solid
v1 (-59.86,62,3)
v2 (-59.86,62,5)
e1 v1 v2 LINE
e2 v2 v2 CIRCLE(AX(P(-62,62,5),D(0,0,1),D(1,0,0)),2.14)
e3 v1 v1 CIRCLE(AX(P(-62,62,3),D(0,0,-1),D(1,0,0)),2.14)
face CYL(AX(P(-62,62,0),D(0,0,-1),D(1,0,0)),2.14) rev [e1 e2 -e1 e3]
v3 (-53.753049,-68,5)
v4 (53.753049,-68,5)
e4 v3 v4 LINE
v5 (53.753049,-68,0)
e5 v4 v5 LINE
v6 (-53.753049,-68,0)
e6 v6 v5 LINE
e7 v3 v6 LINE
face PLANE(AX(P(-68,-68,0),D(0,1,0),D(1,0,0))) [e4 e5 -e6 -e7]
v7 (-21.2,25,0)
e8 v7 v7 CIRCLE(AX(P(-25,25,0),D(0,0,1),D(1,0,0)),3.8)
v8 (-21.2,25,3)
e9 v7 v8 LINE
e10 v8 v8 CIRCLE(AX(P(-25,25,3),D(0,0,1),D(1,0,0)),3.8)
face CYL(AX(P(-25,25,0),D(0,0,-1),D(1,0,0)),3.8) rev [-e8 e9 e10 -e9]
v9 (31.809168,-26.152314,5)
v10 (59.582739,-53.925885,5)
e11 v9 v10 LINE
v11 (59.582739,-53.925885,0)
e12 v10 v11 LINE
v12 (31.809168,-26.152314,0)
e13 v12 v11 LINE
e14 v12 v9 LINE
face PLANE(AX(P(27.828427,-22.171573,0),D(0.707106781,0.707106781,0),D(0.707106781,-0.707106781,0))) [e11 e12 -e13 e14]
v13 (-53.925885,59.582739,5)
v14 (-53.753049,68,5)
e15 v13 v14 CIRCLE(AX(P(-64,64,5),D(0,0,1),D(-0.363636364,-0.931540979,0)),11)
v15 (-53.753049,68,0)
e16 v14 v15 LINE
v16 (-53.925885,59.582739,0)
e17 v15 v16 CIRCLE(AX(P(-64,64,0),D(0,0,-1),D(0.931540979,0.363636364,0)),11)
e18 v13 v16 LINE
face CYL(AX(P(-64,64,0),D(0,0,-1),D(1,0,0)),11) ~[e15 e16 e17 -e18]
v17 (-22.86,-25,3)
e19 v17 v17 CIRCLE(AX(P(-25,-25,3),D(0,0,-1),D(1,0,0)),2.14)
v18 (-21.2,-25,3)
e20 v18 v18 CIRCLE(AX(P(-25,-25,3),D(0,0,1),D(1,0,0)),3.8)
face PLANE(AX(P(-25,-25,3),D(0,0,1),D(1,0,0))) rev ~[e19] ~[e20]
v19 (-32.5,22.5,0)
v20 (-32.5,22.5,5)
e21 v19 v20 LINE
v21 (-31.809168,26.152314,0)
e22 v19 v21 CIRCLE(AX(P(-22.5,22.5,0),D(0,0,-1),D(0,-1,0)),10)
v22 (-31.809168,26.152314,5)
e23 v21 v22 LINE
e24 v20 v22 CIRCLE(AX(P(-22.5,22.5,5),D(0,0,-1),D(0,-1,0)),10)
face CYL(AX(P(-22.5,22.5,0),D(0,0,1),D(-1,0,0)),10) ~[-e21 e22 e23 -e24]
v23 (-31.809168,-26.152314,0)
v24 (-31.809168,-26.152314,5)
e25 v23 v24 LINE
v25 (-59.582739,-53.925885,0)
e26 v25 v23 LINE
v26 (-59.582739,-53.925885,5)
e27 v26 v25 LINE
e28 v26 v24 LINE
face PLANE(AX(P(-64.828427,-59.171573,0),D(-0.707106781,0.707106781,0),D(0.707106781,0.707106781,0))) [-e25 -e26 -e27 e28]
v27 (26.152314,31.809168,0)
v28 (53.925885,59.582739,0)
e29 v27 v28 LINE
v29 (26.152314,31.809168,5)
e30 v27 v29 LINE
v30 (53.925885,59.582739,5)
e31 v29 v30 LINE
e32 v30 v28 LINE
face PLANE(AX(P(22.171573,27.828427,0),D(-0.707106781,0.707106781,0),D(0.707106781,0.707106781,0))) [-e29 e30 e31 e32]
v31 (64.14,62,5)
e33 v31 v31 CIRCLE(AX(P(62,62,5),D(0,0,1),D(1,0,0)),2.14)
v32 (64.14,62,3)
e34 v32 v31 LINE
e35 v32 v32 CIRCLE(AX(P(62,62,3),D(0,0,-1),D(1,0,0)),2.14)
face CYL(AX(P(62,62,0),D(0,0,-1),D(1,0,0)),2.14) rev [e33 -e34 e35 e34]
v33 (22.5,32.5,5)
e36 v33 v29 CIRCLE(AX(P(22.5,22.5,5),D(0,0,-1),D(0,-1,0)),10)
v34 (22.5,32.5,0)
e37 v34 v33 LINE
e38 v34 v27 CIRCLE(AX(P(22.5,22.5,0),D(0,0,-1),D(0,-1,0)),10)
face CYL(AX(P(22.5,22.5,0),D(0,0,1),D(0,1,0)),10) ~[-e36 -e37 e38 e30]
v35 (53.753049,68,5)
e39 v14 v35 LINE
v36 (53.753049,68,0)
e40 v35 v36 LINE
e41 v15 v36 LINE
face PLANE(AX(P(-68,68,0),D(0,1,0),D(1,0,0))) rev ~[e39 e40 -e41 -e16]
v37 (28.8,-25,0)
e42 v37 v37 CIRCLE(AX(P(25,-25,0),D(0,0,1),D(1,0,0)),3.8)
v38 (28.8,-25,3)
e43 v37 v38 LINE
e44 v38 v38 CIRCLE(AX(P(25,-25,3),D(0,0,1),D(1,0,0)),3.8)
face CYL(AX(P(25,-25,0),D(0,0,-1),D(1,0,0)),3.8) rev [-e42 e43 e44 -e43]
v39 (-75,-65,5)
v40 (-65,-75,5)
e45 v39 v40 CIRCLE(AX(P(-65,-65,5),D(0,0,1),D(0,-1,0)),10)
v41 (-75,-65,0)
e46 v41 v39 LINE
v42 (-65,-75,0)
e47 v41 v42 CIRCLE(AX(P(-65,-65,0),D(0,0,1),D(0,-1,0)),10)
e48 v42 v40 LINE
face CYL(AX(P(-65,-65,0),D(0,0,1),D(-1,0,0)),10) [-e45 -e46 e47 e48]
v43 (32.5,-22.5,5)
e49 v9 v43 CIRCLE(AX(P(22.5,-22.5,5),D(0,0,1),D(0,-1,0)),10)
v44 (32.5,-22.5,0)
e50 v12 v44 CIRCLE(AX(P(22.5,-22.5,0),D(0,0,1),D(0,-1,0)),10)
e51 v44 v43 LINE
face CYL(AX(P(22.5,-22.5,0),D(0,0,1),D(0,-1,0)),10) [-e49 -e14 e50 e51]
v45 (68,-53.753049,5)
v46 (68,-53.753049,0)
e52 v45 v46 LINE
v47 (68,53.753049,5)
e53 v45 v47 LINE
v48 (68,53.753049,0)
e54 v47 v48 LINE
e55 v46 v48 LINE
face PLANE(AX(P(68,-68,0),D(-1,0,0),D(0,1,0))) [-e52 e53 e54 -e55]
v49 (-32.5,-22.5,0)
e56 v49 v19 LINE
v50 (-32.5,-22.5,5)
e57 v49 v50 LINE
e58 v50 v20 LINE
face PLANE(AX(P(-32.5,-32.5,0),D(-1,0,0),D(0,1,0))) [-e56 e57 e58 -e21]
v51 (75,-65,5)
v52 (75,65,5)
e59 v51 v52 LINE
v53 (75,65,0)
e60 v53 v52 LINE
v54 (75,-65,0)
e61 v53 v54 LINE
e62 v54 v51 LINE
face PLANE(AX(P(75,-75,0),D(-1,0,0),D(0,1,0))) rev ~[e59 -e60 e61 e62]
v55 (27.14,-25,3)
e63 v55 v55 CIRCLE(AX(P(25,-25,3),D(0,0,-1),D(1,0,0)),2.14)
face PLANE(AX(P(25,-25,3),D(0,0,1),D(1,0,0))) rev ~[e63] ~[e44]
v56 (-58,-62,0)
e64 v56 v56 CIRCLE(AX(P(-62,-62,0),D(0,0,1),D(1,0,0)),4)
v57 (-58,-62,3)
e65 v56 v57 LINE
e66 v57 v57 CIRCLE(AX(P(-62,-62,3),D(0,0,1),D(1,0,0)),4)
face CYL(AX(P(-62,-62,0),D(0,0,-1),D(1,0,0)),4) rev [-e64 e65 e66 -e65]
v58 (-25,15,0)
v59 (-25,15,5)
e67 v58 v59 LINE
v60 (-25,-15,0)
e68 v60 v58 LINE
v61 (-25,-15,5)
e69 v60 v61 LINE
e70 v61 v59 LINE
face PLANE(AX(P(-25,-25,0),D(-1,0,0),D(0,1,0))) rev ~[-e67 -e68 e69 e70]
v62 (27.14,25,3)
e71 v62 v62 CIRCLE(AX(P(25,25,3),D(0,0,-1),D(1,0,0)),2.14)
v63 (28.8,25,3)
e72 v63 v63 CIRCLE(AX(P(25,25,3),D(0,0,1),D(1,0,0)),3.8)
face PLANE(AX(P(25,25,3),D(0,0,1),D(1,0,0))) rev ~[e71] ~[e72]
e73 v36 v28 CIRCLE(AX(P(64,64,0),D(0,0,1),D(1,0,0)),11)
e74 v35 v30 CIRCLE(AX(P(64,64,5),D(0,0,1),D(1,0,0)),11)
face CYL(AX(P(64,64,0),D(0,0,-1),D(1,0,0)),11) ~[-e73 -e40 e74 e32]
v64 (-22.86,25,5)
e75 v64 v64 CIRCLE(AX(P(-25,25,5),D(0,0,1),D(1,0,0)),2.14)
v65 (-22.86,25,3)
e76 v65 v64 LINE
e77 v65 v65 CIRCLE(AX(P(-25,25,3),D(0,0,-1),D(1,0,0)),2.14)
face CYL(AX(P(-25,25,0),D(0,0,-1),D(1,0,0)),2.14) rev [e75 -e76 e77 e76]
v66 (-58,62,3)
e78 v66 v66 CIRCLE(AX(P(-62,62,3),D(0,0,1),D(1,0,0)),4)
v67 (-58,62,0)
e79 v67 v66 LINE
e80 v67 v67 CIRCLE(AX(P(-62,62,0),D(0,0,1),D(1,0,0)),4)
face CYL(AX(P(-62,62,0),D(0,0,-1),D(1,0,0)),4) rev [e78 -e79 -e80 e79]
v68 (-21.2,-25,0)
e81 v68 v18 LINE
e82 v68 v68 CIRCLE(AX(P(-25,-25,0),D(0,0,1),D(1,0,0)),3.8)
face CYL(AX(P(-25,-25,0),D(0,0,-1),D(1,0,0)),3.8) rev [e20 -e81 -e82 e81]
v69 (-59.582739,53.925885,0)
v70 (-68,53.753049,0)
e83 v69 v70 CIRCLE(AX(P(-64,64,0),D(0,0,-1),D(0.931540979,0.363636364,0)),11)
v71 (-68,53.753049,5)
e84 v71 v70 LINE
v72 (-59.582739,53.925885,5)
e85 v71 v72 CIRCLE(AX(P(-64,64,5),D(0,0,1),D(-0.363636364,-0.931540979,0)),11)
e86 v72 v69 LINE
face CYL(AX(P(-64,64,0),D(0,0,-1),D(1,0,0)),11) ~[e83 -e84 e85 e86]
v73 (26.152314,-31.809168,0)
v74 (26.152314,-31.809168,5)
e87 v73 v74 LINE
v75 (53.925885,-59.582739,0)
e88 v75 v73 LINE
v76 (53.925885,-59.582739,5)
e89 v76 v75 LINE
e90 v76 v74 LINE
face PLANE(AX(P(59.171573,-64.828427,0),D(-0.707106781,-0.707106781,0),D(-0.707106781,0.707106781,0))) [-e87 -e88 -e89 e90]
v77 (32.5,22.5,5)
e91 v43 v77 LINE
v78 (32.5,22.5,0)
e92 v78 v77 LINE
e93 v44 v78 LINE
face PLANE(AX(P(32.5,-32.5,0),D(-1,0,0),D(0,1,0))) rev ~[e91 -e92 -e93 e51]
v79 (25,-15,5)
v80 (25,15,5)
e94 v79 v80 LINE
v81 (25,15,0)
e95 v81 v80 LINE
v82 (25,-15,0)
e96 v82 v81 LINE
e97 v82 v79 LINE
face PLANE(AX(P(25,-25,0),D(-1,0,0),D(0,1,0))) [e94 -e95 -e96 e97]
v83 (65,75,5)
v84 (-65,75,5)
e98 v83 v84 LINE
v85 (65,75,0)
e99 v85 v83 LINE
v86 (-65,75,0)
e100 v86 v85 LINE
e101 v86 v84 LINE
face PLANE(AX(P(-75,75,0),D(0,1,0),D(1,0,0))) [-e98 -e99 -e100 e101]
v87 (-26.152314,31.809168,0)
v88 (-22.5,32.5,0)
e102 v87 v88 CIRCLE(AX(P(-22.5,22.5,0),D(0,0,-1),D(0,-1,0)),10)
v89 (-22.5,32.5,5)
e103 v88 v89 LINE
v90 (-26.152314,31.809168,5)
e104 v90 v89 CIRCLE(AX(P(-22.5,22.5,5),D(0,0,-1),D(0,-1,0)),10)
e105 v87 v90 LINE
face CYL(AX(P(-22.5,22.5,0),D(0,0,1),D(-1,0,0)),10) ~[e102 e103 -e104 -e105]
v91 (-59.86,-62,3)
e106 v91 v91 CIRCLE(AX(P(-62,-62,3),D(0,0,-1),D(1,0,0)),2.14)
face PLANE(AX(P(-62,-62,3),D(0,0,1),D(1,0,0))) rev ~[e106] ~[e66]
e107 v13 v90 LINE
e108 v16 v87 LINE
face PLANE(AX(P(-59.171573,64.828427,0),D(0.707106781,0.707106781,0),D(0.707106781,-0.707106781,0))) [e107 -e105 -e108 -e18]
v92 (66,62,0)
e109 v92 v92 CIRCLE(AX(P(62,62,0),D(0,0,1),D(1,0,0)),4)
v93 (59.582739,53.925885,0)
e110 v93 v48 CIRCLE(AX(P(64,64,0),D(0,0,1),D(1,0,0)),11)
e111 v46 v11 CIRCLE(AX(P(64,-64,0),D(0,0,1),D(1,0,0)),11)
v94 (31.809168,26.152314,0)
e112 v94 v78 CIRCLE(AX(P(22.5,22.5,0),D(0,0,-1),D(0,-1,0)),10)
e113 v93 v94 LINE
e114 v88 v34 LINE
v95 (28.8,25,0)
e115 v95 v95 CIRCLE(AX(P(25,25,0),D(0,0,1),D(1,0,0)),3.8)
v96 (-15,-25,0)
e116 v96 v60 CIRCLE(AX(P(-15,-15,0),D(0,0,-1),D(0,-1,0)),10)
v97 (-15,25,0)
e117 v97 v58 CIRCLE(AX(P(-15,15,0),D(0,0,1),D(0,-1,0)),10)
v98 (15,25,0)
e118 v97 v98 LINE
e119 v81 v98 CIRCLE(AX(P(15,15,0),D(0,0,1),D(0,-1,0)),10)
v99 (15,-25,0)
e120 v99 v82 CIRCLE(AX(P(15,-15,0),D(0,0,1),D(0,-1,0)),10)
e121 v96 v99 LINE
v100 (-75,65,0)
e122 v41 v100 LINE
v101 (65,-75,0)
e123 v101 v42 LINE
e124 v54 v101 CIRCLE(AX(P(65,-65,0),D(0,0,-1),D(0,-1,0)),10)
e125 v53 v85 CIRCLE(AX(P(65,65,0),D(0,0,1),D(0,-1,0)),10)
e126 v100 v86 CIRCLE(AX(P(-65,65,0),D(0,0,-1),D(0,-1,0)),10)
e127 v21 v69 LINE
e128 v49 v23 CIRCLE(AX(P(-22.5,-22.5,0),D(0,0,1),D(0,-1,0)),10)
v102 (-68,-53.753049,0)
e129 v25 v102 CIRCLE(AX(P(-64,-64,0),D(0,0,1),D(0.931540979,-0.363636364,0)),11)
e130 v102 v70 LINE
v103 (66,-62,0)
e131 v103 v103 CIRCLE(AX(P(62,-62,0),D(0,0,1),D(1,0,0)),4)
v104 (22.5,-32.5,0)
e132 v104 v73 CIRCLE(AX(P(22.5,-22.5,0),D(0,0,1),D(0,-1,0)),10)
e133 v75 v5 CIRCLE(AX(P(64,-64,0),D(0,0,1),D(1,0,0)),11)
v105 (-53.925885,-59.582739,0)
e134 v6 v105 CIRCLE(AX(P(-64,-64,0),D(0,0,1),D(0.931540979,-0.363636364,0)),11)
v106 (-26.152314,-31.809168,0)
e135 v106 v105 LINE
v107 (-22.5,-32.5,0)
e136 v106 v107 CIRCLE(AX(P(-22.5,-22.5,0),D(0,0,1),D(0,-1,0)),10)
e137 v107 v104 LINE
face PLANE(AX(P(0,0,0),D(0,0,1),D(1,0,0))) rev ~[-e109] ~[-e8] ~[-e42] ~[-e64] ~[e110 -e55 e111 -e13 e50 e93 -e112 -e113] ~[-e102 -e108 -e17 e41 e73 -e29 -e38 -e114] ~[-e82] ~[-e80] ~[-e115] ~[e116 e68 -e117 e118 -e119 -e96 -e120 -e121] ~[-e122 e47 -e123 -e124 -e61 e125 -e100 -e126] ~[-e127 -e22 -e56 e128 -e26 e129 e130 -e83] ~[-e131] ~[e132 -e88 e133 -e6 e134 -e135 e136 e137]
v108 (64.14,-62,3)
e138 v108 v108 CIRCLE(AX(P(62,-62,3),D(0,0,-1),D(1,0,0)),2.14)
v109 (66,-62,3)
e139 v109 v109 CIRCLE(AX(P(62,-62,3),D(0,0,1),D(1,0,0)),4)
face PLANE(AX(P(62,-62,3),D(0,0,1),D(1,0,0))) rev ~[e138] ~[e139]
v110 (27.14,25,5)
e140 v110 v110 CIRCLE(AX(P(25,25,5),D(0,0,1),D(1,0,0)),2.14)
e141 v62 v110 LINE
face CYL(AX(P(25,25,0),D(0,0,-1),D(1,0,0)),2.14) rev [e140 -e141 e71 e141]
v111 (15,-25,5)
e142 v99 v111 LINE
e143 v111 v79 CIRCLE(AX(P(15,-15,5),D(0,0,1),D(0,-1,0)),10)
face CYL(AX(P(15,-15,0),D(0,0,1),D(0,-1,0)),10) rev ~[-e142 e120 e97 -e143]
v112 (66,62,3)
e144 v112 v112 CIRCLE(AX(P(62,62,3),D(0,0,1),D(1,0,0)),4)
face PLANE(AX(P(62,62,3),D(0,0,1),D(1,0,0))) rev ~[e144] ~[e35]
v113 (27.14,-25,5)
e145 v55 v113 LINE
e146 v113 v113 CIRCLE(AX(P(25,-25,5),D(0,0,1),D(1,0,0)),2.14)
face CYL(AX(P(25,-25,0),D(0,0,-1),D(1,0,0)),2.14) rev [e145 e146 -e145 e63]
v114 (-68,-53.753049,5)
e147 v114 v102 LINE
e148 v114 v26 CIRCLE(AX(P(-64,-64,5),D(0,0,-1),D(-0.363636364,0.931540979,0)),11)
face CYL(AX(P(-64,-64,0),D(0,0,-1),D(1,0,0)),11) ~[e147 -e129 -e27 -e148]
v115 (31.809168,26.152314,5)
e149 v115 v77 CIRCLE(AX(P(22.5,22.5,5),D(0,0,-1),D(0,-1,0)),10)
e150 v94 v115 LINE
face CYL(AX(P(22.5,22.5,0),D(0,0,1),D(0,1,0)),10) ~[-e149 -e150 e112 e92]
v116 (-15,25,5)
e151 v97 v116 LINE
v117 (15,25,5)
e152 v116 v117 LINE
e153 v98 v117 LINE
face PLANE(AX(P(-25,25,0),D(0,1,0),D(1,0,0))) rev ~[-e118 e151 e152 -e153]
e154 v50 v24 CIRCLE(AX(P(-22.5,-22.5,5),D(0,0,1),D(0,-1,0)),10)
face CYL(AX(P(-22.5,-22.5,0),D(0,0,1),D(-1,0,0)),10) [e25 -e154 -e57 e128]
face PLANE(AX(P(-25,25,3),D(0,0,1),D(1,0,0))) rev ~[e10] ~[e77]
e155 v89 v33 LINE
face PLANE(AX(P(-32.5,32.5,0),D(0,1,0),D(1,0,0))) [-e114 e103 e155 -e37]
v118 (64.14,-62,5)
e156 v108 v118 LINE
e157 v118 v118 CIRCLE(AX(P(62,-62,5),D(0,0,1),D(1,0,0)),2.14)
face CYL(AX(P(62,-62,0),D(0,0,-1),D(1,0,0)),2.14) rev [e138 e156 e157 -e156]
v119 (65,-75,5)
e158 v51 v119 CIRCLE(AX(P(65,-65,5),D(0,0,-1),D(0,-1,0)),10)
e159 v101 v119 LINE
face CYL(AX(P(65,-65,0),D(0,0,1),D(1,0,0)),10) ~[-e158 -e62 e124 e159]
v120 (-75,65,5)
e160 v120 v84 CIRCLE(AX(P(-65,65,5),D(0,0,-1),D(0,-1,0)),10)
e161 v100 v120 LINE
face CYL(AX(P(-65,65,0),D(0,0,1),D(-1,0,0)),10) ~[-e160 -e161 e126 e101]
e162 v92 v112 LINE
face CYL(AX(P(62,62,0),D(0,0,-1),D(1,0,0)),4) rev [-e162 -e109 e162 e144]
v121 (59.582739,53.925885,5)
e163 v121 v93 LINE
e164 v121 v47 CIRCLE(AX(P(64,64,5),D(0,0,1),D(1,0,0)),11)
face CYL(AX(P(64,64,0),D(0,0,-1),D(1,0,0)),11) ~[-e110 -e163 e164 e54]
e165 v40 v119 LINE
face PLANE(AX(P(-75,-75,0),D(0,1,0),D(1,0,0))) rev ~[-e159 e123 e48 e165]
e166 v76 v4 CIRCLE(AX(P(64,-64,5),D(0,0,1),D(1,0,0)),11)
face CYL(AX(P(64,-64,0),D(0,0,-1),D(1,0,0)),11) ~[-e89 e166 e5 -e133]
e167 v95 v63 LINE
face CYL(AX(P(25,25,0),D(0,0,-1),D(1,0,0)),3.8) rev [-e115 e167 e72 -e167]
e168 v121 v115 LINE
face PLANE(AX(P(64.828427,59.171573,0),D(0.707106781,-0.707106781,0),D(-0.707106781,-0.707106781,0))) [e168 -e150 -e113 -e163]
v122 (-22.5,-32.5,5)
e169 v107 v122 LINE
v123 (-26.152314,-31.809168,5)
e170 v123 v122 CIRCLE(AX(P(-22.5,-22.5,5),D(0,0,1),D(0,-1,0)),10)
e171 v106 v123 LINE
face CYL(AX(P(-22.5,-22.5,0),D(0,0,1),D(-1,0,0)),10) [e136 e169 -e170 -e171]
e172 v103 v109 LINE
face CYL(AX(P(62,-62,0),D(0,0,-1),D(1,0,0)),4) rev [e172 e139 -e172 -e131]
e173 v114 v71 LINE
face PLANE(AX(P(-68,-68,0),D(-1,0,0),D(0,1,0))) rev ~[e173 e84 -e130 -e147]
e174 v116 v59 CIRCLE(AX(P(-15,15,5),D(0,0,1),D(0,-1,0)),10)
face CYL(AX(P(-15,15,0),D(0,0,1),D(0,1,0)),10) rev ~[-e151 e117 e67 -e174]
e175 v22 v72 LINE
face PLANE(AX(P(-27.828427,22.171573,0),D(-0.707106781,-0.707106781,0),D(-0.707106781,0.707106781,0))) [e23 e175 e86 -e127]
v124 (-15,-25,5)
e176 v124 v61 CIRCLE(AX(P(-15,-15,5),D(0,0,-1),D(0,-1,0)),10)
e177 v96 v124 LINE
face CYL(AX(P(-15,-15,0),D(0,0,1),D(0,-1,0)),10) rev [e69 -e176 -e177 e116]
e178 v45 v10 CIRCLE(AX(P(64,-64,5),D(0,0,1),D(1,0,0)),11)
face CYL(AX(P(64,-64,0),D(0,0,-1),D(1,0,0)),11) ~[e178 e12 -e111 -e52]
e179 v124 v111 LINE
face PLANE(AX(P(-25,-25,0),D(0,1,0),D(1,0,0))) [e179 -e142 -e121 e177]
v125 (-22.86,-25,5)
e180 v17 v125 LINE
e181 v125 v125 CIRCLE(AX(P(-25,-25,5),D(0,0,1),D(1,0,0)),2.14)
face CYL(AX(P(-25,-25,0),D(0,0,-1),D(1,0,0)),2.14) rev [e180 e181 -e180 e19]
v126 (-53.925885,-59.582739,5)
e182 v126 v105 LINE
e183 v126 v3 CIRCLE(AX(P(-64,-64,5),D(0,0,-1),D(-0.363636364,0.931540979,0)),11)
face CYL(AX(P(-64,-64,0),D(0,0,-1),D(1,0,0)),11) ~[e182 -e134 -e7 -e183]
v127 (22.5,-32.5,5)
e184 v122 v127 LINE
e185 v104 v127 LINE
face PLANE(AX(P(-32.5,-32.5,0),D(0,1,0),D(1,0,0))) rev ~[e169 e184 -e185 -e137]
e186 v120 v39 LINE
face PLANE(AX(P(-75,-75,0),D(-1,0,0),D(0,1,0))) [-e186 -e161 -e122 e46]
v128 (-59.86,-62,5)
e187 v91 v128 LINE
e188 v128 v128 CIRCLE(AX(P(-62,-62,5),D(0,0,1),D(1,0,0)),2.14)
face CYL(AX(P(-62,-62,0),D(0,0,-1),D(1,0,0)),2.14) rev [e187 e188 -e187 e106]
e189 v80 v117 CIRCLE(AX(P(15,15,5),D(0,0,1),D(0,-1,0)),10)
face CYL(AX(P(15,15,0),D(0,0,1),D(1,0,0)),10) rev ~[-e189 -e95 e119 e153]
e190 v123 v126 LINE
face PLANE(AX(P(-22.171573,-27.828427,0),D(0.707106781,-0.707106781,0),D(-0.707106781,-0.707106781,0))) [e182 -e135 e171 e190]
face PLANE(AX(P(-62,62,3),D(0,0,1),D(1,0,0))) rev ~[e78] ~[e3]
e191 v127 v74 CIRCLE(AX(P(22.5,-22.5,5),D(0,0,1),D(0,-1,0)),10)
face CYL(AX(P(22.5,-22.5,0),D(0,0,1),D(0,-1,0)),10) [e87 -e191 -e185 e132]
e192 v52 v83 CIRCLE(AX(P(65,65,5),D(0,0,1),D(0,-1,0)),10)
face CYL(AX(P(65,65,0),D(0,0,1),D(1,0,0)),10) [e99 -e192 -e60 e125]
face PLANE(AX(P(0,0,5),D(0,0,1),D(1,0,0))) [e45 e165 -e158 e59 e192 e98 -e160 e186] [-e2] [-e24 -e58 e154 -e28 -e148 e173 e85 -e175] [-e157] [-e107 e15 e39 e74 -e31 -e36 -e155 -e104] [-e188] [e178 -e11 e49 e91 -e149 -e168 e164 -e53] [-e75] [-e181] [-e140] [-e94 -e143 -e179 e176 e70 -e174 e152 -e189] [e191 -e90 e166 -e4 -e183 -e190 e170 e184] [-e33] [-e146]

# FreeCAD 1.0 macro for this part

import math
import FreeCAD as App
import Part
import Sketcher
Q = App.Units.Quantity


def edges_at(feature, points):
    """Names of the edges that pass closest to the given points."""
    edges = feature.Shape.Edges
    near = lambda p: min(range(len(edges)), key=lambda i: edges[i].distToShape(Part.Vertex(*p))[0])
    return sorted({f"Edge{near(p) + 1}" for p in points})

doc = App.newDocument("Part")
body = doc.addObject("PartDesign::Body", "Body")

sketch1 = doc.addObject("Sketcher::SketchObject", "Sketch")
body.addObject(sketch1)
sketch1.AttachmentSupport = (doc.XY_Plane, [""])
sketch1.MapMode = "FlatFace"
sketch1.addGeometry(Part.Circle(App.Vector(-64, -64, 0), App.Vector(0, 0, 1), 11), False)
sketch1.addConstraint([
    Sketcher.Constraint("Diameter", 0, 22.0),
    Sketcher.Constraint("DistanceX", 0, 3, -1, 1, 64.0),
    Sketcher.Constraint("DistanceY", 0, 3, -1, 1, 64.0),
])
pad1 = doc.addObject("PartDesign::Pad", "Pad")
body.addObject(pad1)
pad1.Profile = sketch1
pad1.Length = 5
body2 = doc.addObject("PartDesign::Body", "Body001")

sketch2 = doc.addObject("Sketcher::SketchObject", "Sketch001")
body2.addObject(sketch2)
sketch2.AttachmentSupport = (doc.getObject("XY_Plane001"), [""])
sketch2.MapMode = "FlatFace"
sketch2.addGeometry(Part.Circle(App.Vector(-64, 64, 0), App.Vector(0, 0, 1), 11), False)
sketch2.addConstraint([
    Sketcher.Constraint("Diameter", 0, 22.0),
    Sketcher.Constraint("DistanceX", 0, 3, -1, 1, 64.0),
    Sketcher.Constraint("DistanceY", -1, 1, 0, 3, 64.0),
])
pad2 = doc.addObject("PartDesign::Pad", "Pad001")
body2.addObject(pad2)
pad2.Profile = sketch2
pad2.Length = 5
body3 = doc.addObject("PartDesign::Body", "Body002")

sketch3 = doc.addObject("Sketcher::SketchObject", "Sketch002")
body3.addObject(sketch3)
sketch3.AttachmentSupport = (doc.getObject("XY_Plane002"), [""])
sketch3.MapMode = "FlatFace"
sketch3.addGeometry(Part.Circle(App.Vector(64, -64, 0), App.Vector(0, 0, 1), 11), False)
sketch3.addConstraint([
    Sketcher.Constraint("Diameter", 0, 22.0),
    Sketcher.Constraint("DistanceX", -1, 1, 0, 3, 64.0),
    Sketcher.Constraint("DistanceY", 0, 3, -1, 1, 64.0),
])
pad3 = doc.addObject("PartDesign::Pad", "Pad002")
body3.addObject(pad3)
pad3.Profile = sketch3
pad3.Length = 5
body4 = doc.addObject("PartDesign::Body", "Body003")

sketch4 = doc.addObject("Sketcher::SketchObject", "Sketch003")
body4.addObject(sketch4)
sketch4.AttachmentSupport = (doc.getObject("XY_Plane003"), [""])
sketch4.MapMode = "FlatFace"
sketch4.addGeometry(Part.Circle(App.Vector(64, 64, 0), App.Vector(0, 0, 1), 11), False)
sketch4.addConstraint([
    Sketcher.Constraint("Diameter", 0, 22.0),
    Sketcher.Constraint("DistanceX", -1, 1, 0, 3, 64.0),
    Sketcher.Constraint("DistanceY", -1, 1, 0, 3, 64.0),
])
pad4 = doc.addObject("PartDesign::Pad", "Pad003")
body4.addObject(pad4)
pad4.Profile = sketch4
pad4.Length = 5
body2.AllowCompound = True
doc.recompute()

boolean = doc.addObject("PartDesign::Boolean", "Boolean")
body2.addObject(boolean)
boolean.Type = "Fuse"
boolean.addObjects([body3])
doc.recompute()

boolean2 = doc.addObject("PartDesign::Boolean", "Boolean001")
body2.addObject(boolean2)
boolean2.Type = "Fuse"
boolean2.addObjects([body4])

sketch5 = doc.addObject("Sketcher::SketchObject", "Sketch004")
body2.addObject(sketch5)
sketch5.AttachmentSupport = (doc.getObject("XY_Plane001"), [""])
sketch5.MapMode = "FlatFace"
sketch5.addGeometry([
    Part.LineSegment(App.Vector(-75, 75, 0), App.Vector(-75, -75, 0)),
    Part.LineSegment(App.Vector(-75, -75, 0), App.Vector(75, -75, 0)),
    Part.LineSegment(App.Vector(75, -75, 0), App.Vector(75, 75, 0)),
    Part.LineSegment(App.Vector(75, 75, 0), App.Vector(-75, 75, 0)),
    Part.LineSegment(App.Vector(68, -68, 0), App.Vector(-68, -68, 0)),
    Part.LineSegment(App.Vector(-68, -68, 0), App.Vector(-68, 68, 0)),
    Part.LineSegment(App.Vector(-68, 68, 0), App.Vector(68, 68, 0)),
    Part.LineSegment(App.Vector(68, 68, 0), App.Vector(68, -68, 0)),
], False)
sketch5.addConstraint([
    Sketcher.Constraint("Coincident", 0, 2, 1, 1),
    Sketcher.Constraint("Coincident", 1, 2, 2, 1),
    Sketcher.Constraint("Coincident", 2, 2, 3, 1),
    Sketcher.Constraint("Coincident", 3, 2, 0, 1),
    Sketcher.Constraint("Coincident", 4, 2, 5, 1),
    Sketcher.Constraint("Coincident", 5, 2, 6, 1),
    Sketcher.Constraint("Coincident", 6, 2, 7, 1),
    Sketcher.Constraint("Coincident", 7, 2, 4, 1),
    Sketcher.Constraint("Vertical", 0),
    Sketcher.Constraint("Horizontal", 1),
    Sketcher.Constraint("Vertical", 2),
    Sketcher.Constraint("Horizontal", 3),
    Sketcher.Constraint("Horizontal", 4),
    Sketcher.Constraint("Vertical", 5),
    Sketcher.Constraint("Horizontal", 6),
    Sketcher.Constraint("Vertical", 7),
    Sketcher.Constraint("Symmetric", 0, 2, 2, 2, -1, 1),
    Sketcher.Constraint("Symmetric", 4, 2, 6, 2, -1, 1),
    Sketcher.Constraint("Equal", 3, 0),
    Sketcher.Constraint("Equal", 6, 5),
    Sketcher.Constraint("DistanceX", 1, 1, 1, 2, 150.0),
    Sketcher.Constraint("DistanceX", 4, 2, 4, 1, 136.0),
])
pad5 = doc.addObject("PartDesign::Pad", "Pad004")
body2.addObject(pad5)
pad5.Profile = sketch5
pad5.Length = 5
doc.recompute()

fillet = doc.addObject("PartDesign::Fillet", "Fillet")
body2.addObject(fillet)
fillet.Base = (pad5, edges_at(pad5, [
    (75, -75, 2.5),
    (75, 75, 2.5),
    (-75, 75, 2.5),
    (-75, -75, 2.5),
]))
fillet.Radius = 10
doc.recompute()

boolean3 = doc.addObject("PartDesign::Boolean", "Boolean002")
body2.addObject(boolean3)
boolean3.Type = "Fuse"
boolean3.addObjects([body])
body5 = doc.addObject("PartDesign::Body", "Body004")

sketch6 = doc.addObject("Sketcher::SketchObject", "Sketch005")
body5.addObject(sketch6)
sketch6.AttachmentSupport = (doc.getObject("XY_Plane004"), [""])
sketch6.MapMode = "FlatFace"
sketch6.addGeometry(Part.Circle(App.Vector(-62, 62, 0), App.Vector(0, 0, 1), 2.1), False)
sketch6.addConstraint([
    Sketcher.Constraint("Diameter", 0, 4.28),
    Sketcher.Constraint("DistanceX", 0, 3, -1, 1, 62.0),
    Sketcher.Constraint("DistanceY", -1, 1, 0, 3, 62.0),
])
pad6 = doc.addObject("PartDesign::Pad", "Pad005")
body5.addObject(pad6)
pad6.Profile = sketch6
pad6.Length = 5
body6 = doc.addObject("PartDesign::Body", "Body005")

sketch7 = doc.addObject("Sketcher::SketchObject", "Sketch006")
body6.addObject(sketch7)
sketch7.AttachmentSupport = (doc.getObject("XY_Plane005"), [""])
sketch7.MapMode = "FlatFace"
sketch7.addGeometry(Part.Circle(App.Vector(-62, -62, 0), App.Vector(0, 0, 1), 2.1), False)
sketch7.addConstraint([
    Sketcher.Constraint("Diameter", 0, 4.28),
    Sketcher.Constraint("DistanceX", 0, 3, -1, 1, 62.0),
    Sketcher.Constraint("DistanceY", 0, 3, -1, 1, 62.0),
])
pad7 = doc.addObject("PartDesign::Pad", "Pad006")
body6.addObject(pad7)
pad7.Profile = sketch7
pad7.Length = 5
body7 = doc.addObject("PartDesign::Body", "Body006")

sketch8 = doc.addObject("Sketcher::SketchObject", "Sketch007")
body7.addObject(sketch8)
sketch8.AttachmentSupport = (doc.getObject("XY_Plane006"), [""])
sketch8.MapMode = "FlatFace"
sketch8.addGeometry(Part.Circle(App.Vector(62, 62, 0), App.Vector(0, 0, 1), 2.1), False)
sketch8.addConstraint([
    Sketcher.Constraint("Diameter", 0, 4.28),
    Sketcher.Constraint("DistanceX", -1, 1, 0, 3, 62.0),
    Sketcher.Constraint("DistanceY", -1, 1, 0, 3, 62.0),
])
pad8 = doc.addObject("PartDesign::Pad", "Pad007")
body7.addObject(pad8)
pad8.Profile = sketch8
pad8.Length = 5
body8 = doc.addObject("PartDesign::Body", "Body007")

sketch9 = doc.addObject("Sketcher::SketchObject", "Sketch008")
body8.addObject(sketch9)
sketch9.AttachmentSupport = (doc.getObject("XY_Plane007"), [""])
sketch9.MapMode = "FlatFace"
sketch9.addGeometry(Part.Circle(App.Vector(62, -62, 0), App.Vector(0, 0, 1), 2.1), False)
sketch9.addConstraint([
    Sketcher.Constraint("Diameter", 0, 4.28),
    Sketcher.Constraint("DistanceX", -1, 1, 0, 3, 62.0),
    Sketcher.Constraint("DistanceY", 0, 3, -1, 1, 62.0),
])
pad9 = doc.addObject("PartDesign::Pad", "Pad008")
body8.addObject(pad9)
pad9.Profile = sketch9
pad9.Length = 5
body9 = doc.addObject("PartDesign::Body", "Body008")

sketch10 = doc.addObject("Sketcher::SketchObject", "Sketch009")
body9.addObject(sketch10)
sketch10.AttachmentSupport = (doc.getObject("XY_Plane008"), [""])
sketch10.MapMode = "FlatFace"
sketch10.addGeometry(Part.Circle(App.Vector(-62, 62, 0), App.Vector(0, 0, 1), 4), False)
sketch10.addConstraint([
    Sketcher.Constraint("Diameter", 0, 8.0),
    Sketcher.Constraint("DistanceX", 0, 3, -1, 1, 62.0),
    Sketcher.Constraint("DistanceY", -1, 1, 0, 3, 62.0),
])
pad10 = doc.addObject("PartDesign::Pad", "Pad009")
body9.addObject(pad10)
pad10.Profile = sketch10
pad10.Length = 3
body10 = doc.addObject("PartDesign::Body", "Body009")

sketch11 = doc.addObject("Sketcher::SketchObject", "Sketch010")
body10.addObject(sketch11)
sketch11.AttachmentSupport = (doc.getObject("XY_Plane009"), [""])
sketch11.MapMode = "FlatFace"
sketch11.addGeometry(Part.Circle(App.Vector(-62, -62, 0), App.Vector(0, 0, 1), 4), False)
sketch11.addConstraint([
    Sketcher.Constraint("Diameter", 0, 8.0),
    Sketcher.Constraint("DistanceX", 0, 3, -1, 1, 62.0),
    Sketcher.Constraint("DistanceY", 0, 3, -1, 1, 62.0),
])
pad11 = doc.addObject("PartDesign::Pad", "Pad010")
body10.addObject(pad11)
pad11.Profile = sketch11
pad11.Length = 3
body11 = doc.addObject("PartDesign::Body", "Body010")

sketch12 = doc.addObject("Sketcher::SketchObject", "Sketch011")
body11.addObject(sketch12)
sketch12.AttachmentSupport = (doc.getObject("XY_Plane010"), [""])
sketch12.MapMode = "FlatFace"
sketch12.addGeometry(Part.Circle(App.Vector(62, 62, 0), App.Vector(0, 0, 1), 4), False)
sketch12.addConstraint([
    Sketcher.Constraint("Diameter", 0, 8.0),
    Sketcher.Constraint("DistanceX", -1, 1, 0, 3, 62.0),
    Sketcher.Constraint("DistanceY", -1, 1, 0, 3, 62.0),
])
pad12 = doc.addObject("PartDesign::Pad", "Pad011")
body11.addObject(pad12)
pad12.Profile = sketch12
pad12.Length = 3
body12 = doc.addObject("PartDesign::Body", "Body011")

sketch13 = doc.addObject("Sketcher::SketchObject", "Sketch012")
body12.addObject(sketch13)
sketch13.AttachmentSupport = (doc.getObject("XY_Plane011"), [""])
sketch13.MapMode = "FlatFace"
sketch13.addGeometry(Part.Circle(App.Vector(62, -62, 0), App.Vector(0, 0, 1), 4), False)
sketch13.addConstraint([
    Sketcher.Constraint("Diameter", 0, 8.0),
    Sketcher.Constraint("DistanceX", -1, 1, 0, 3, 62.0),
    Sketcher.Constraint("DistanceY", 0, 3, -1, 1, 62.0),
])
pad13 = doc.addObject("PartDesign::Pad", "Pad012")
body12.addObject(pad13)
pad13.Profile = sketch13
pad13.Length = 3
body13 = doc.addObject("PartDesign::Body", "Body012")

sketch14 = doc.addObject("Sketcher::SketchObject", "Sketch013")
body13.addObject(sketch14)
sketch14.AttachmentSupport = (doc.getObject("XY_Plane012"), [""])
sketch14.MapMode = "FlatFace"
sketch14.addGeometry([
    Part.LineSegment(App.Vector(-32, 32, 0), App.Vector(-32, -32, 0)),
    Part.LineSegment(App.Vector(-32, -32, 0), App.Vector(32, -32, 0)),
    Part.LineSegment(App.Vector(32, -32, 0), App.Vector(32, 32, 0)),
    Part.LineSegment(App.Vector(32, 32, 0), App.Vector(-32, 32, 0)),
    Part.LineSegment(App.Vector(25, -25, 0), App.Vector(-25, -25, 0)),
    Part.LineSegment(App.Vector(-25, -25, 0), App.Vector(-25, 25, 0)),
    Part.LineSegment(App.Vector(-25, 25, 0), App.Vector(25, 25, 0)),
    Part.LineSegment(App.Vector(25, 25, 0), App.Vector(25, -25, 0)),
], False)
sketch14.addConstraint([
    Sketcher.Constraint("Coincident", 0, 2, 1, 1),
    Sketcher.Constraint("Coincident", 1, 2, 2, 1),
    Sketcher.Constraint("Coincident", 2, 2, 3, 1),
    Sketcher.Constraint("Coincident", 3, 2, 0, 1),
    Sketcher.Constraint("Coincident", 4, 2, 5, 1),
    Sketcher.Constraint("Coincident", 5, 2, 6, 1),
    Sketcher.Constraint("Coincident", 6, 2, 7, 1),
    Sketcher.Constraint("Coincident", 7, 2, 4, 1),
    Sketcher.Constraint("Vertical", 0),
    Sketcher.Constraint("Horizontal", 1),
    Sketcher.Constraint("Vertical", 2),
    Sketcher.Constraint("Horizontal", 3),
    Sketcher.Constraint("Horizontal", 4),
    Sketcher.Constraint("Vertical", 5),
    Sketcher.Constraint("Horizontal", 6),
    Sketcher.Constraint("Vertical", 7),
    Sketcher.Constraint("Symmetric", 0, 2, 2, 2, -1, 1),
    Sketcher.Constraint("Symmetric", 4, 2, 6, 2, -1, 1),
    Sketcher.Constraint("Equal", 3, 0),
    Sketcher.Constraint("Equal", 6, 5),
    Sketcher.Constraint("DistanceX", 1, 1, 1, 2, 65.0),
    Sketcher.Constraint("DistanceX", 4, 2, 4, 1, 50.0),
])
pad14 = doc.addObject("PartDesign::Pad", "Pad013")
body13.addObject(pad14)
pad14.Profile = sketch14
pad14.Length = 5
doc.recompute()

fillet2 = doc.addObject("PartDesign::Fillet", "Fillet001")
body13.addObject(fillet2)
fillet2.Base = (pad14, edges_at(pad14, [
    (-25, -25, 2.5),
    (25, -25, 2.5),
    (-25, 25, 2.5),
    (25, 25, 2.5),
    (32.5, -32.5, 2.5),
    (-32.5, -32.5, 2.5),
    (-32.5, 32.5, 2.5),
    (32.5, 32.5, 2.5),
]))
fillet2.Radius = 10
body14 = doc.addObject("PartDesign::Body", "Body013")

sketch15 = doc.addObject("Sketcher::SketchObject", "Sketch014")
body14.addObject(sketch15)
sketch15.AttachmentSupport = (doc.getObject("XY_Plane013"), [""])
sketch15.MapMode = "FlatFace"
sketch15.addGeometry(Part.Circle(App.Vector(25, 25, 0), App.Vector(0, 0, 1), 2.1), False)
sketch15.addConstraint([
    Sketcher.Constraint("Diameter", 0, 4.28),
    Sketcher.Constraint("DistanceX", -1, 1, 0, 3, 25.0),
    Sketcher.Constraint("DistanceY", -1, 1, 0, 3, 25.0),
])
pad15 = doc.addObject("PartDesign::Pad", "Pad014")
body14.addObject(pad15)
pad15.Profile = sketch15
pad15.Length = 5
body15 = doc.addObject("PartDesign::Body", "Body014")

sketch16 = doc.addObject("Sketcher::SketchObject", "Sketch015")
body15.addObject(sketch16)
sketch16.AttachmentSupport = (doc.getObject("XY_Plane014"), [""])
sketch16.MapMode = "FlatFace"
sketch16.addGeometry(Part.Circle(App.Vector(-25, 25, 0), App.Vector(0, 0, 1), 2.1), False)
sketch16.addConstraint([
    Sketcher.Constraint("Diameter", 0, 4.28),
    Sketcher.Constraint("DistanceX", 0, 3, -1, 1, 25.0),
    Sketcher.Constraint("DistanceY", -1, 1, 0, 3, 25.0),
])
pad16 = doc.addObject("PartDesign::Pad", "Pad015")
body15.addObject(pad16)
pad16.Profile = sketch16
pad16.Length = 5
body16 = doc.addObject("PartDesign::Body", "Body015")

sketch17 = doc.addObject("Sketcher::SketchObject", "Sketch016")
body16.addObject(sketch17)
sketch17.AttachmentSupport = (doc.getObject("XY_Plane015"), [""])
sketch17.MapMode = "FlatFace"
sketch17.addGeometry(Part.Circle(App.Vector(-25, -25, 0), App.Vector(0, 0, 1), 2.1), False)
sketch17.addConstraint([
    Sketcher.Constraint("Diameter", 0, 4.28),
    Sketcher.Constraint("DistanceX", 0, 3, -1, 1, 25.0),
    Sketcher.Constraint("DistanceY", 0, 3, -1, 1, 25.0),
])
pad17 = doc.addObject("PartDesign::Pad", "Pad016")
body16.addObject(pad17)
pad17.Profile = sketch17
pad17.Length = 5
body17 = doc.addObject("PartDesign::Body", "Body016")

sketch18 = doc.addObject("Sketcher::SketchObject", "Sketch017")
body17.addObject(sketch18)
sketch18.AttachmentSupport = (doc.getObject("XY_Plane016"), [""])
sketch18.MapMode = "FlatFace"
sketch18.addGeometry(Part.Circle(App.Vector(25, -25, 0), App.Vector(0, 0, 1), 2.1), False)
sketch18.addConstraint([
    Sketcher.Constraint("Diameter", 0, 4.28),
    Sketcher.Constraint("DistanceX", -1, 1, 0, 3, 25.0),
    Sketcher.Constraint("DistanceY", 0, 3, -1, 1, 25.0),
])
pad18 = doc.addObject("PartDesign::Pad", "Pad017")
body17.addObject(pad18)
pad18.Profile = sketch18
pad18.Length = 5
body18 = doc.addObject("PartDesign::Body", "Body017")

sketch19 = doc.addObject("Sketcher::SketchObject", "Sketch018")
body18.addObject(sketch19)
sketch19.AttachmentSupport = (doc.getObject("XY_Plane017"), [""])
sketch19.MapMode = "FlatFace"
sketch19.addGeometry(Part.Circle(App.Vector(25, 25, 0), App.Vector(0, 0, 1), 3.8), False)
sketch19.addConstraint([
    Sketcher.Constraint("Diameter", 0, 7.6),
    Sketcher.Constraint("DistanceX", -1, 1, 0, 3, 25.0),
    Sketcher.Constraint("DistanceY", -1, 1, 0, 3, 25.0),
])
pad19 = doc.addObject("PartDesign::Pad", "Pad018")
body18.addObject(pad19)
pad19.Profile = sketch19
pad19.Length = 3
body19 = doc.addObject("PartDesign::Body", "Body018")

sketch20 = doc.addObject("Sketcher::SketchObject", "Sketch019")
body19.addObject(sketch20)
sketch20.AttachmentSupport = (doc.getObject("XY_Plane018"), [""])
sketch20.MapMode = "FlatFace"
sketch20.addGeometry(Part.Circle(App.Vector(-25, 25, 0), App.Vector(0, 0, 1), 3.8), False)
sketch20.addConstraint([
    Sketcher.Constraint("Diameter", 0, 7.6),
    Sketcher.Constraint("DistanceX", 0, 3, -1, 1, 25.0),
    Sketcher.Constraint("DistanceY", -1, 1, 0, 3, 25.0),
])
pad20 = doc.addObject("PartDesign::Pad", "Pad019")
body19.addObject(pad20)
pad20.Profile = sketch20
pad20.Length = 3
body20 = doc.addObject("PartDesign::Body", "Body019")

sketch21 = doc.addObject("Sketcher::SketchObject", "Sketch020")
body20.addObject(sketch21)
sketch21.AttachmentSupport = (doc.getObject("XY_Plane019"), [""])
sketch21.MapMode = "FlatFace"
sketch21.addGeometry(Part.Circle(App.Vector(-25, -25, 0), App.Vector(0, 0, 1), 3.8), False)
sketch21.addConstraint([
    Sketcher.Constraint("Diameter", 0, 7.6),
    Sketcher.Constraint("DistanceX", 0, 3, -1, 1, 25.0),
    Sketcher.Constraint("DistanceY", 0, 3, -1, 1, 25.0),
])
pad21 = doc.addObject("PartDesign::Pad", "Pad020")
body20.addObject(pad21)
pad21.Profile = sketch21
pad21.Length = 3
body21 = doc.addObject("PartDesign::Body", "Body020")

sketch22 = doc.addObject("Sketcher::SketchObject", "Sketch021")
body21.addObject(sketch22)
sketch22.AttachmentSupport = (doc.getObject("XY_Plane020"), [""])
sketch22.MapMode = "FlatFace"
sketch22.addGeometry(Part.Circle(App.Vector(25, -25, 0), App.Vector(0, 0, 1), 3.8), False)
sketch22.addConstraint([
    Sketcher.Constraint("Diameter", 0, 7.6),
    Sketcher.Constraint("DistanceX", -1, 1, 0, 3, 25.0),
    Sketcher.Constraint("DistanceY", 0, 3, -1, 1, 25.0),
])
pad22 = doc.addObject("PartDesign::Pad", "Pad021")
body21.addObject(pad22)
pad22.Profile = sketch22
pad22.Length = 3
body22 = doc.addObject("PartDesign::Body", "Body021")

sketch23 = doc.addObject("Sketcher::SketchObject", "Sketch022")
body22.addObject(sketch23)
sketch23.AttachmentSupport = (doc.getObject("XY_Plane021"), [""])
sketch23.MapMode = "FlatFace"
sketch23.addGeometry([
    Part.LineSegment(App.Vector(-22.2, 27.8, 0), App.Vector(-59.2, 64.8, 0)),
    Part.ArcOfCircle(Part.Circle(App.Vector(-62, 62, 0), App.Vector(0, 0, 1), 4), math.radians(45), math.radians(225)),
    Part.LineSegment(App.Vector(-64.8, 59.2, 0), App.Vector(-27.8, 22.2, 0)),
    Part.ArcOfCircle(Part.Circle(App.Vector(-25, 25, 0), App.Vector(0, 0, 1), 4), math.radians(-135), math.radians(45)),
], False)
sketch23.addConstraint([
    Sketcher.Constraint("Tangent", 0, 2, 1, 1),
    Sketcher.Constraint("Tangent", 1, 2, 2, 1),
    Sketcher.Constraint("Tangent", 2, 2, 3, 1),
    Sketcher.Constraint("Tangent", 3, 2, 0, 1),
    Sketcher.Constraint("Equal", 1, 3),
    Sketcher.Constraint("Radius", 1, 4.0),
    Sketcher.Constraint("Angle", 0, Q("135 deg")),
    Sketcher.Constraint("DistanceX", 1, 3, -1, 1, 62.0),
    Sketcher.Constraint("DistanceY", -1, 1, 1, 3, 62.0),
    Sketcher.Constraint("DistanceX", 3, 3, -1, 1, 25.0),
])
pad23 = doc.addObject("PartDesign::Pad", "Pad022")
body22.addObject(pad23)
pad23.Profile = sketch23
pad23.Length = 5
body23 = doc.addObject("PartDesign::Body", "Body022")

sketch24 = doc.addObject("Sketcher::SketchObject", "Sketch023")
body23.addObject(sketch24)
sketch24.AttachmentSupport = (doc.getObject("XY_Plane022"), [""])
sketch24.MapMode = "FlatFace"
sketch24.addGeometry([
    Part.LineSegment(App.Vector(27.8, 22.2, 0), App.Vector(64.8, 59.2, 0)),
    Part.ArcOfCircle(Part.Circle(App.Vector(62, 62, 0), App.Vector(0, 0, 1), 4), math.radians(-45), math.radians(135)),
    Part.LineSegment(App.Vector(59.2, 64.8, 0), App.Vector(22.2, 27.8, 0)),
    Part.ArcOfCircle(Part.Circle(App.Vector(25, 25, 0), App.Vector(0, 0, 1), 4), math.radians(135), math.radians(315)),
], False)
sketch24.addConstraint([
    Sketcher.Constraint("Tangent", 0, 2, 1, 1),
    Sketcher.Constraint("Tangent", 1, 2, 2, 1),
    Sketcher.Constraint("Tangent", 2, 2, 3, 1),
    Sketcher.Constraint("Tangent", 3, 2, 0, 1),
    Sketcher.Constraint("Equal", 1, 3),
    Sketcher.Constraint("Radius", 1, 4.0),
    Sketcher.Constraint("Angle", 0, Q("45 deg")),
    Sketcher.Constraint("DistanceX", -1, 1, 1, 3, 62.0),
    Sketcher.Constraint("DistanceY", -1, 1, 1, 3, 62.0),
    Sketcher.Constraint("DistanceX", -1, 1, 3, 3, 25.0),
])
pad24 = doc.addObject("PartDesign::Pad", "Pad023")
body23.addObject(pad24)
pad24.Profile = sketch24
pad24.Length = 5
body24 = doc.addObject("PartDesign::Body", "Body023")

sketch25 = doc.addObject("Sketcher::SketchObject", "Sketch024")
body24.addObject(sketch25)
sketch25.AttachmentSupport = (doc.getObject("XY_Plane023"), [""])
sketch25.MapMode = "FlatFace"
sketch25.addGeometry([
    Part.LineSegment(App.Vector(64.8, -59.2, 0), App.Vector(27.8, -22.2, 0)),
    Part.ArcOfCircle(Part.Circle(App.Vector(25, -25, 0), App.Vector(0, 0, 1), 4), math.radians(45), math.radians(225)),
    Part.LineSegment(App.Vector(22.2, -27.8, 0), App.Vector(59.2, -64.8, 0)),
    Part.ArcOfCircle(Part.Circle(App.Vector(62, -62, 0), App.Vector(0, 0, 1), 4), math.radians(-135), math.radians(45)),
], False)
sketch25.addConstraint([
    Sketcher.Constraint("Tangent", 0, 2, 1, 1),
    Sketcher.Constraint("Tangent", 1, 2, 2, 1),
    Sketcher.Constraint("Tangent", 2, 2, 3, 1),
    Sketcher.Constraint("Tangent", 3, 2, 0, 1),
    Sketcher.Constraint("Equal", 1, 3),
    Sketcher.Constraint("Radius", 1, 4.0),
    Sketcher.Constraint("Angle", 0, Q("135 deg")),
    Sketcher.Constraint("DistanceX", -1, 1, 1, 3, 25.0),
    Sketcher.Constraint("DistanceY", 1, 3, -1, 1, 25.0),
    Sketcher.Constraint("DistanceX", -1, 1, 3, 3, 62.0),
])
pad25 = doc.addObject("PartDesign::Pad", "Pad024")
body24.addObject(pad25)
pad25.Profile = sketch25
pad25.Length = 5
body25 = doc.addObject("PartDesign::Body", "Body024")
body25.AllowCompound = True

sketch26 = doc.addObject("Sketcher::SketchObject", "Sketch025")
body25.addObject(sketch26)
sketch26.AttachmentSupport = (doc.getObject("XY_Plane024"), [""])
sketch26.MapMode = "FlatFace"
sketch26.addGeometry([
    Part.LineSegment(App.Vector(-59.2, -64.8, 0), App.Vector(-22.2, -27.8, 0)),
    Part.ArcOfCircle(Part.Circle(App.Vector(-25, -25, 0), App.Vector(0, 0, 1), 4), math.radians(-45), math.radians(135)),
    Part.LineSegment(App.Vector(-27.8, -22.2, 0), App.Vector(-64.8, -59.2, 0)),
    Part.ArcOfCircle(Part.Circle(App.Vector(-62, -62, 0), App.Vector(0, 0, 1), 4), math.radians(135), math.radians(315)),
], False)
sketch26.addConstraint([
    Sketcher.Constraint("Tangent", 0, 2, 1, 1),
    Sketcher.Constraint("Tangent", 1, 2, 2, 1),
    Sketcher.Constraint("Tangent", 2, 2, 3, 1),
    Sketcher.Constraint("Tangent", 3, 2, 0, 1),
    Sketcher.Constraint("Equal", 1, 3),
    Sketcher.Constraint("Radius", 1, 4.0),
    Sketcher.Constraint("Angle", 0, Q("45 deg")),
    Sketcher.Constraint("DistanceX", 1, 3, -1, 1, 25.0),
    Sketcher.Constraint("DistanceY", 1, 3, -1, 1, 25.0),
    Sketcher.Constraint("DistanceX", 3, 3, -1, 1, 62.0),
])
pad26 = doc.addObject("PartDesign::Pad", "Pad025")
body25.addObject(pad26)
pad26.Profile = sketch26
pad26.Length = 5
doc.recompute()

boolean4 = doc.addObject("PartDesign::Boolean", "Boolean003")
body25.addObject(boolean4)
boolean4.Type = "Fuse"
boolean4.addObjects([body24])
doc.recompute()

boolean5 = doc.addObject("PartDesign::Boolean", "Boolean004")
body25.addObject(boolean5)
boolean5.Type = "Fuse"
boolean5.addObjects([body23])
doc.recompute()

boolean6 = doc.addObject("PartDesign::Boolean", "Boolean005")
body25.addObject(boolean6)
boolean6.Type = "Fuse"
boolean6.addObjects([body22])
doc.recompute()

boolean7 = doc.addObject("PartDesign::Boolean", "Boolean006")
body25.addObject(boolean7)
boolean7.Type = "Fuse"
boolean7.addObjects([body2])
doc.recompute()

boolean8 = doc.addObject("PartDesign::Boolean", "Boolean007")
body25.addObject(boolean8)
boolean8.Type = "Fuse"
boolean8.addObjects([body13])
doc.recompute()

boolean9 = doc.addObject("PartDesign::Boolean", "Boolean008")
body25.addObject(boolean9)
boolean9.Type = "Cut"
boolean9.addObjects([body18])
doc.recompute()

boolean10 = doc.addObject("PartDesign::Boolean", "Boolean009")
body25.addObject(boolean10)
boolean10.Type = "Cut"
boolean10.addObjects([body21])
doc.recompute()

boolean11 = doc.addObject("PartDesign::Boolean", "Boolean010")
body25.addObject(boolean11)
boolean11.Type = "Cut"
boolean11.addObjects([body20])
doc.recompute()

boolean12 = doc.addObject("PartDesign::Boolean", "Boolean011")
body25.addObject(boolean12)
boolean12.Type = "Cut"
boolean12.addObjects([body19])
doc.recompute()

boolean13 = doc.addObject("PartDesign::Boolean", "Boolean012")
body25.addObject(boolean13)
boolean13.Type = "Cut"
boolean13.addObjects([body14])
doc.recompute()

boolean14 = doc.addObject("PartDesign::Boolean", "Boolean013")
body25.addObject(boolean14)
boolean14.Type = "Cut"
boolean14.addObjects([body17])
doc.recompute()

boolean15 = doc.addObject("PartDesign::Boolean", "Boolean014")
body25.addObject(boolean15)
boolean15.Type = "Cut"
boolean15.addObjects([body16])
doc.recompute()

boolean16 = doc.addObject("PartDesign::Boolean", "Boolean015")
body25.addObject(boolean16)
boolean16.Type = "Cut"
boolean16.addObjects([body15])
doc.recompute()

boolean17 = doc.addObject("PartDesign::Boolean", "Boolean016")
body25.addObject(boolean17)
boolean17.Type = "Cut"
boolean17.addObjects([body12])
doc.recompute()

boolean18 = doc.addObject("PartDesign::Boolean", "Boolean017")
body25.addObject(boolean18)
boolean18.Type = "Cut"
boolean18.addObjects([body9])
doc.recompute()

boolean19 = doc.addObject("PartDesign::Boolean", "Boolean018")
body25.addObject(boolean19)
boolean19.Type = "Cut"
boolean19.addObjects([body11])
doc.recompute()

boolean20 = doc.addObject("PartDesign::Boolean", "Boolean019")
body25.addObject(boolean20)
boolean20.Type = "Cut"
boolean20.addObjects([body10])
doc.recompute()

boolean21 = doc.addObject("PartDesign::Boolean", "Boolean020")
body25.addObject(boolean21)
boolean21.Type = "Cut"
boolean21.addObjects([body8])
doc.recompute()

boolean22 = doc.addObject("PartDesign::Boolean", "Boolean021")
body25.addObject(boolean22)
boolean22.Type = "Cut"
boolean22.addObjects([body5])
doc.recompute()

boolean23 = doc.addObject("PartDesign::Boolean", "Boolean022")
body25.addObject(boolean23)
boolean23.Type = "Cut"
boolean23.addObjects([body7])
doc.recompute()

boolean24 = doc.addObject("PartDesign::Boolean", "Boolean023")
body25.addObject(boolean24)
boolean24.Type = "Cut"
boolean24.addObjects([body6])

doc.recompute()
